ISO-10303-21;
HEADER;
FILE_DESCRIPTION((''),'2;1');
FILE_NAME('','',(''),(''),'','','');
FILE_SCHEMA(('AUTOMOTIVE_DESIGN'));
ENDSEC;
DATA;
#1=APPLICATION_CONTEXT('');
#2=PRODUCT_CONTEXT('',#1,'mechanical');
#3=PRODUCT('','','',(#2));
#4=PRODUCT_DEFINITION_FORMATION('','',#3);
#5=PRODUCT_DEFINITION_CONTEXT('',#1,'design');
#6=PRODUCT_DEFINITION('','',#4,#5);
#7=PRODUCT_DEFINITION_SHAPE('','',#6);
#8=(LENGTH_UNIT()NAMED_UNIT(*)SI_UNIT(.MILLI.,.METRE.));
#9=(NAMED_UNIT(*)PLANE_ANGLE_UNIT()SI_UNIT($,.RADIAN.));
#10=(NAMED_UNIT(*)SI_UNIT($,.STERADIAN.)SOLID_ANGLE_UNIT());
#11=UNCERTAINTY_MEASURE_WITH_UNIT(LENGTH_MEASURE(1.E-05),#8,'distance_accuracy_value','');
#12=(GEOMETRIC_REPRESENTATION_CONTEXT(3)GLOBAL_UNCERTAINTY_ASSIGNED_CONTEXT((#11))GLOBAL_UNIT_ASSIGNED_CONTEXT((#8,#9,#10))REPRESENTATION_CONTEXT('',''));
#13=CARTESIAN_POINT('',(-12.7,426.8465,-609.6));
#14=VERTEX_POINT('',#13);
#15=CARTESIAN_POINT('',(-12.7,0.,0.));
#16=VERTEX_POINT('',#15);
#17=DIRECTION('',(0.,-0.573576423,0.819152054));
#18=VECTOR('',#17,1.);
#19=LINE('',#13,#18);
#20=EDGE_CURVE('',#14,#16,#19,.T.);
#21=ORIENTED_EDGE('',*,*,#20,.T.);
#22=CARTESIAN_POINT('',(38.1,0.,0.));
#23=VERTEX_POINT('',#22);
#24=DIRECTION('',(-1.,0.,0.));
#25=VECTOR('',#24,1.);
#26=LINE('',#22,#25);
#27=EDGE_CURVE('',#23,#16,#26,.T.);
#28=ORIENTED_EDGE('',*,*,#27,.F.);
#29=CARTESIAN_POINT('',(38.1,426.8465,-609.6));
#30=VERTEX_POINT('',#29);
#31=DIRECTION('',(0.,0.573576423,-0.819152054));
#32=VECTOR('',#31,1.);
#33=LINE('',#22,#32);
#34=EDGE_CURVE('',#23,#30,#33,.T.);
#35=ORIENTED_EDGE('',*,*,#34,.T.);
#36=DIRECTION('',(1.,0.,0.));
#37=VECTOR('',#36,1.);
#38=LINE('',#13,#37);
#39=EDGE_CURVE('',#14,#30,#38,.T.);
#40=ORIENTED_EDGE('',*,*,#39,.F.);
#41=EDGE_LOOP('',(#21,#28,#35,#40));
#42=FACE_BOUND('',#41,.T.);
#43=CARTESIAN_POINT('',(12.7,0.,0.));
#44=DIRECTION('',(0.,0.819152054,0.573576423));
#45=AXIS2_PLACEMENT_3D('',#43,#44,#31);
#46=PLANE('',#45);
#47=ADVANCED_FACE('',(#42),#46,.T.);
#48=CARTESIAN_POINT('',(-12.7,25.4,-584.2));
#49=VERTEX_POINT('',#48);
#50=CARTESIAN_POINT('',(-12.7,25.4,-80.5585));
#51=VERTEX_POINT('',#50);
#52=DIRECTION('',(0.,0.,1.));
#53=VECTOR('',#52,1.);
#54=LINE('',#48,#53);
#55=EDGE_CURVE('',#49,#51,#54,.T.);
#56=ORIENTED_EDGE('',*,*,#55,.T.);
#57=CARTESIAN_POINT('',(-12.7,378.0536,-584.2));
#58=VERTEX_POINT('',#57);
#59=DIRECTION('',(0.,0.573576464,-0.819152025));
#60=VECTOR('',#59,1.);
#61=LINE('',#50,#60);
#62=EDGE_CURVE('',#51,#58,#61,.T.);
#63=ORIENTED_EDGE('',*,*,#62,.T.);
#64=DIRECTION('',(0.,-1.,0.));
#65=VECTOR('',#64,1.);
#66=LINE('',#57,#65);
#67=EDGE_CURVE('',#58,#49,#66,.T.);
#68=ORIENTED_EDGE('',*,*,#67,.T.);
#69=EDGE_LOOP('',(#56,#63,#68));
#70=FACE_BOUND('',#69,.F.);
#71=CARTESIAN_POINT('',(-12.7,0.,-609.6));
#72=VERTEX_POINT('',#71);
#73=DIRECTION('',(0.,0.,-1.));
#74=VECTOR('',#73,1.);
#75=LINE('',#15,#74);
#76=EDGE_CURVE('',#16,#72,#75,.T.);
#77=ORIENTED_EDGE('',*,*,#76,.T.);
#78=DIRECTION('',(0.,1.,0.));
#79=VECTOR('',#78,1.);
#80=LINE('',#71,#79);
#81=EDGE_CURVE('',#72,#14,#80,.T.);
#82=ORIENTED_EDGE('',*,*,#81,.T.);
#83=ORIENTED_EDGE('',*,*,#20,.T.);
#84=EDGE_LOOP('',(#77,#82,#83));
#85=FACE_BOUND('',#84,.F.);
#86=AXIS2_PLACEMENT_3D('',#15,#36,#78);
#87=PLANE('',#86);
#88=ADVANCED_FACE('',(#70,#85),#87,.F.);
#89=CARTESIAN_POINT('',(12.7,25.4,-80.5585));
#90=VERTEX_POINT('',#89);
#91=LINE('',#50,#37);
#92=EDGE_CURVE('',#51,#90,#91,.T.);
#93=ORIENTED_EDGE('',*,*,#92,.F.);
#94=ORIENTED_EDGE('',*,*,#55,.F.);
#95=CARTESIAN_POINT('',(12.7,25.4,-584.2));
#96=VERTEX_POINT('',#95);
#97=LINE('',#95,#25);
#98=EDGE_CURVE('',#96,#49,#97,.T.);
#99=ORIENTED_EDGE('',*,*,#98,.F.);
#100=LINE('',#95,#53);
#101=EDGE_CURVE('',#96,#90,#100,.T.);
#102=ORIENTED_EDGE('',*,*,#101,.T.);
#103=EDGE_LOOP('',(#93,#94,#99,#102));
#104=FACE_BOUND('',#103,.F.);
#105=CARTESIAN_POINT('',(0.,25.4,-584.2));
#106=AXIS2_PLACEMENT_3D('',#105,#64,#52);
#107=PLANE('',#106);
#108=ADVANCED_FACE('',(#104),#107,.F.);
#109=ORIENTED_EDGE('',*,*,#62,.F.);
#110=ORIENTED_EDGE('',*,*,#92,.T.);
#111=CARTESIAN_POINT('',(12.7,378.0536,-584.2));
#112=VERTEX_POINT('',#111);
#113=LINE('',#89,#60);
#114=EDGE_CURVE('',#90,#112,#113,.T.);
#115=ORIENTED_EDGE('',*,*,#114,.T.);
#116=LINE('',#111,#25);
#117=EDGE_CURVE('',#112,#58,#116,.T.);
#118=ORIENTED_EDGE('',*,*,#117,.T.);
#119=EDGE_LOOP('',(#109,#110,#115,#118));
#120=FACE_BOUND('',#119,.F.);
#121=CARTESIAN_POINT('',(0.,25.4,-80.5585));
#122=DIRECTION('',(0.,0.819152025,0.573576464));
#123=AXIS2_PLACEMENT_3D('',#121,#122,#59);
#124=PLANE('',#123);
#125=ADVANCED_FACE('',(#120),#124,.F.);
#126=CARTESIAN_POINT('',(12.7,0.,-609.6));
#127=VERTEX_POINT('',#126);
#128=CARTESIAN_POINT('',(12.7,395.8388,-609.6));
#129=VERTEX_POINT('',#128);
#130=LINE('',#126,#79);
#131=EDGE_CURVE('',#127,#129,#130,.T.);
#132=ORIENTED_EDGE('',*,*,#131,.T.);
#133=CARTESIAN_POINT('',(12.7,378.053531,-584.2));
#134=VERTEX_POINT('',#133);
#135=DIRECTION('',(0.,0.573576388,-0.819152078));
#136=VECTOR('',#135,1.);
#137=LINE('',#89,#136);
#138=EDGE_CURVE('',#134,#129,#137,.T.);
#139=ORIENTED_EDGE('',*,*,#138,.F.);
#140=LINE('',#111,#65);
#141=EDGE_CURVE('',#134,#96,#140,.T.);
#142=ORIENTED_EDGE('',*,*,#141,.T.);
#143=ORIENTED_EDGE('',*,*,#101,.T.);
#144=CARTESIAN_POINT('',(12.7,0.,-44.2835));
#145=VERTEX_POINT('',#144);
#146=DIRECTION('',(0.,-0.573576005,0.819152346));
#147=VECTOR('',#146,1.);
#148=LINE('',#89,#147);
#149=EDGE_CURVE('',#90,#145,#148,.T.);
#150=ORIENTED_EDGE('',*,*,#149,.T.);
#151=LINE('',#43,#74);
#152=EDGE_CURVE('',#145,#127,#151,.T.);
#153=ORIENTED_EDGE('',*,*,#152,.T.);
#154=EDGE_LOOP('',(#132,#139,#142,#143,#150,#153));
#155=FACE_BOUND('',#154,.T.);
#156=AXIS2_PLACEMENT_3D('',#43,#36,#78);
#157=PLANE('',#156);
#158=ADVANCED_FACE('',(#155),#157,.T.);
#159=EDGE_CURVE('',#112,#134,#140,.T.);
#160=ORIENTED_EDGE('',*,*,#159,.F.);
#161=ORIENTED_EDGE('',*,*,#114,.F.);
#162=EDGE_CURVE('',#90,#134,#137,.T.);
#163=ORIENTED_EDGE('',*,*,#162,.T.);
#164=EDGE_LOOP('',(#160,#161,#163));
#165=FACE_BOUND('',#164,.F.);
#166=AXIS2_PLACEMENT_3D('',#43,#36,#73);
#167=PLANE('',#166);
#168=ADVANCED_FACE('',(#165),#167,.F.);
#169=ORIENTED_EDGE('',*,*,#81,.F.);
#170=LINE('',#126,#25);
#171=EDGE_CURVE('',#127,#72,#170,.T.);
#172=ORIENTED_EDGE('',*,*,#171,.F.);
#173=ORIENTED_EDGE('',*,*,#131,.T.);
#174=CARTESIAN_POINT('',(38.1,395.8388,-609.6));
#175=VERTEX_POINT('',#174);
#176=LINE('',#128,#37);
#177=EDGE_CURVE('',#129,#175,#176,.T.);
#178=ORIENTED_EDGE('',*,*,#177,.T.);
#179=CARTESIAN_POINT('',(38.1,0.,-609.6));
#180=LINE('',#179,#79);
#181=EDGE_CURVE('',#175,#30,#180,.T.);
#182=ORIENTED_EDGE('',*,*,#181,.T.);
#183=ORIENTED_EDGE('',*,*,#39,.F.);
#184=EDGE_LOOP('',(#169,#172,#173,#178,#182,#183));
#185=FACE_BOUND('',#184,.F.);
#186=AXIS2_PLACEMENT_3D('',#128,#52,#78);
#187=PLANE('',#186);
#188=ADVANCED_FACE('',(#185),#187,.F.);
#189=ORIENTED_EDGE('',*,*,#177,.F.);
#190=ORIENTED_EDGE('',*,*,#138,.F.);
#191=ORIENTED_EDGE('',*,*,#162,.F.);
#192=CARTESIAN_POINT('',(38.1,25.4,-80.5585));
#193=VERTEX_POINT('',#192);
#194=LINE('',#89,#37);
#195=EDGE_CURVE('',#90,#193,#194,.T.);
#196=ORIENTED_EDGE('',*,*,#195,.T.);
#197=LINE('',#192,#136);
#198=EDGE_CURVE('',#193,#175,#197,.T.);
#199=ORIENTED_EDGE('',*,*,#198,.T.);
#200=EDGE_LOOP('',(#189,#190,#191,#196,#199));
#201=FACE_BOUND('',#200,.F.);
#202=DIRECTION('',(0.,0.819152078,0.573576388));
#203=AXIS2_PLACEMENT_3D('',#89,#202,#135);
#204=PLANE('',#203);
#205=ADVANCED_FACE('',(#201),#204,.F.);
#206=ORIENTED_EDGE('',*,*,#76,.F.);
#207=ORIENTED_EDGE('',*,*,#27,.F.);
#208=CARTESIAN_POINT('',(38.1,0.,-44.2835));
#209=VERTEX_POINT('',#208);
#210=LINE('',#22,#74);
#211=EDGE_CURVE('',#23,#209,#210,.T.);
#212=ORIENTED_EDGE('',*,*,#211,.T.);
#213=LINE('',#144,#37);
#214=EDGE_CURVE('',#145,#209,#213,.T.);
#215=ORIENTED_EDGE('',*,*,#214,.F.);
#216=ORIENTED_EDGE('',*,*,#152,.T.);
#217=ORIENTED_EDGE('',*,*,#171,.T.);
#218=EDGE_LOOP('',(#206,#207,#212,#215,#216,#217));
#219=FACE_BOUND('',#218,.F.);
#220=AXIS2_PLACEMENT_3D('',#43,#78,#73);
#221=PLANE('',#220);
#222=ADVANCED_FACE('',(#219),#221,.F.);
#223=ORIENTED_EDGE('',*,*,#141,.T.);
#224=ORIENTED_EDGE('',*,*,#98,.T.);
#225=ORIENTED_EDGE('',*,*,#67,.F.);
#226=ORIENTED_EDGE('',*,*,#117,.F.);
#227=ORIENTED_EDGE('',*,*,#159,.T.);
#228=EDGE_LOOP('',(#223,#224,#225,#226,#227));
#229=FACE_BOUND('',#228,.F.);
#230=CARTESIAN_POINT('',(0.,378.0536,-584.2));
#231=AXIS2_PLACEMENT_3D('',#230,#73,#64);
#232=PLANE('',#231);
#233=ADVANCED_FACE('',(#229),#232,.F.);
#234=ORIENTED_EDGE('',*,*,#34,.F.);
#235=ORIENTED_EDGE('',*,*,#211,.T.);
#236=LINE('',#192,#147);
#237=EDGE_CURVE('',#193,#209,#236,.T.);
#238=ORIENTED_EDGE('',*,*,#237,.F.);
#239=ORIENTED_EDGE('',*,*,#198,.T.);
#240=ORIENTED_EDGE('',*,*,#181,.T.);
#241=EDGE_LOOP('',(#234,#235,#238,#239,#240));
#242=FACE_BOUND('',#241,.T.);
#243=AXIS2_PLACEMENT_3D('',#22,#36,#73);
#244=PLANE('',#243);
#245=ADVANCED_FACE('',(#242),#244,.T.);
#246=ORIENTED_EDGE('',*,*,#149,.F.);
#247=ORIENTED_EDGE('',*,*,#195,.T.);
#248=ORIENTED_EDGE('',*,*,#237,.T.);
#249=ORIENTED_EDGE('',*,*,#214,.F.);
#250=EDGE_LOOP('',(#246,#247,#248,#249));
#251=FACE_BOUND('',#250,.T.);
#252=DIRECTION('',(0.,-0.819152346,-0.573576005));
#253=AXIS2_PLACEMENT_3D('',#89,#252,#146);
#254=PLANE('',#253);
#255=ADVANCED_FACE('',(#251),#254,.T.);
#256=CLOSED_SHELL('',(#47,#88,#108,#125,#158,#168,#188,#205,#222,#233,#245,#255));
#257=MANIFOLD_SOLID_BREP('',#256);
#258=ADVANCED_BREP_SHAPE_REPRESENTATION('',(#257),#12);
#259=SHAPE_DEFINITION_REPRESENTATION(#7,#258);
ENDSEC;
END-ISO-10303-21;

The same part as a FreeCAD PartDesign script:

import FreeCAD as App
import Part
import Sketcher
from FreeCAD import Vector
Q = App.Units.Quantity

doc = App.newDocument("Part")
body = doc.addObject("PartDesign::Body", "Body")

sketch1 = body.newObject("Sketcher::SketchObject", "Sketch")
sketch1.AttachmentSupport = (doc.getObject("YZ_Plane"), [""])
sketch1.MapMode = "FlatFace"
sketch1.addGeometry(Part.LineSegment(Vector(427, -610, 0), Vector(0, 0, 0)), False)
sketch1.addGeometry(Part.LineSegment(Vector(0, 0, 0), Vector(0, -610, 0)), False)
sketch1.addGeometry(Part.LineSegment(Vector(0, -610, 0), Vector(427, -610, 0)), False)
sketch1.addGeometry(Part.LineSegment(Vector(25, -584, 0), Vector(25, -81, 0)), False)
sketch1.addGeometry(Part.LineSegment(Vector(25, -81, 0), Vector(378, -584, 0)), False)
sketch1.addGeometry(Part.LineSegment(Vector(378, -584, 0), Vector(25, -584, 0)), False)
sketch1.addConstraint(Sketcher.Constraint("Coincident", 0, 2, 1, 1))
sketch1.addConstraint(Sketcher.Constraint("Coincident", 1, 2, 2, 1))
sketch1.addConstraint(Sketcher.Constraint("Coincident", 2, 2, 0, 1))
sketch1.addConstraint(Sketcher.Constraint("Coincident", 3, 2, 4, 1))
sketch1.addConstraint(Sketcher.Constraint("Coincident", 4, 2, 5, 1))
sketch1.addConstraint(Sketcher.Constraint("Coincident", 5, 2, 3, 1))
sketch1.addConstraint(Sketcher.Constraint("Vertical", 1))
sketch1.addConstraint(Sketcher.Constraint("Horizontal", 2))
sketch1.addConstraint(Sketcher.Constraint("Vertical", 3))
sketch1.addConstraint(Sketcher.Constraint("Horizontal", 5))
sketch1.addConstraint(Sketcher.Constraint("Coincident", 0, 2, -1, 1))
sketch1.addConstraint(Sketcher.Constraint("Parallel", 0, 4))
sketch1.addConstraint(Sketcher.Constraint("DistanceY", 1, 2, 1, 1, Q("24 in")))
sketch1.addConstraint(Sketcher.Constraint("DistanceX", -1, 1, 3, 2, Q("1 in")))
sketch1.addConstraint(Sketcher.Constraint("DistanceY", 2, 2, 4, 2, Q("1 in")))
sketch1.addConstraint(Sketcher.Constraint("Angle", 0, Q("125 deg")))
sketch1.addConstraint(Sketcher.Constraint("DistanceX", 5, 2, 5, 1, Q("13.884 in")))
pad1 = body.newObject("PartDesign::Pad", "Pad")
pad1.Profile = sketch1
pad1.Length = Q("1 in")
pad1.Midplane = True

sketch2 = body.newObject("Sketcher::SketchObject", "Sketch001")
sketch2.AttachmentSupport = (doc.getObject("YZ_Plane"), [""])
sketch2.MapMode = "FlatFace"
sketch2.AttachmentOffset = App.Placement(Vector(0, 0, 0.5 * 25.4), App.Rotation())
sketch2.addGeometry(Part.LineSegment(Vector(25, -81, 0), Vector(396, -610, 0)), False)
sketch2.addGeometry(Part.LineSegment(Vector(396, -610, 0), Vector(427, -610, 0)), False)
sketch2.addGeometry(Part.LineSegment(Vector(427, -610, 0), Vector(0, 0, 0)), False)
sketch2.addGeometry(Part.LineSegment(Vector(0, 0, 0), Vector(0, -44, 0)), False)
sketch2.addGeometry(Part.LineSegment(Vector(0, -44, 0), Vector(25, -81, 0)), False)
sketch2.addConstraint(Sketcher.Constraint("Coincident", 0, 2, 1, 1))
sketch2.addConstraint(Sketcher.Constraint("Coincident", 1, 2, 2, 1))
sketch2.addConstraint(Sketcher.Constraint("Coincident", 2, 2, 3, 1))
sketch2.addConstraint(Sketcher.Constraint("Coincident", 3, 2, 4, 1))
sketch2.addConstraint(Sketcher.Constraint("Coincident", 4, 2, 0, 1))
sketch2.addConstraint(Sketcher.Constraint("Horizontal", 1))
sketch2.addConstraint(Sketcher.Constraint("Vertical", 3))
sketch2.addConstraint(Sketcher.Constraint("Coincident", 2, 2, -1, 1))
sketch2.addConstraint(Sketcher.Constraint("Parallel", 0, 2))
sketch2.addConstraint(Sketcher.Constraint("Parallel", 2, 4))
sketch2.addConstraint(Sketcher.Constraint("DistanceY", 0, 2, -1, 1, Q("24 in")))
sketch2.addConstraint(Sketcher.Constraint("DistanceX", -1, 1, 4, 2, Q("1 in")))
sketch2.addConstraint(Sketcher.Constraint("Angle", 0, Q("-55 deg")))
sketch2.addConstraint(Sketcher.Constraint("DistanceX", 1, 1, 1, 2, 31.0077))
pad2 = body.newObject("PartDesign::Pad", "Pad001")
pad2.Profile = sketch2
pad2.Length = Q("1 in")

doc.recompute()
